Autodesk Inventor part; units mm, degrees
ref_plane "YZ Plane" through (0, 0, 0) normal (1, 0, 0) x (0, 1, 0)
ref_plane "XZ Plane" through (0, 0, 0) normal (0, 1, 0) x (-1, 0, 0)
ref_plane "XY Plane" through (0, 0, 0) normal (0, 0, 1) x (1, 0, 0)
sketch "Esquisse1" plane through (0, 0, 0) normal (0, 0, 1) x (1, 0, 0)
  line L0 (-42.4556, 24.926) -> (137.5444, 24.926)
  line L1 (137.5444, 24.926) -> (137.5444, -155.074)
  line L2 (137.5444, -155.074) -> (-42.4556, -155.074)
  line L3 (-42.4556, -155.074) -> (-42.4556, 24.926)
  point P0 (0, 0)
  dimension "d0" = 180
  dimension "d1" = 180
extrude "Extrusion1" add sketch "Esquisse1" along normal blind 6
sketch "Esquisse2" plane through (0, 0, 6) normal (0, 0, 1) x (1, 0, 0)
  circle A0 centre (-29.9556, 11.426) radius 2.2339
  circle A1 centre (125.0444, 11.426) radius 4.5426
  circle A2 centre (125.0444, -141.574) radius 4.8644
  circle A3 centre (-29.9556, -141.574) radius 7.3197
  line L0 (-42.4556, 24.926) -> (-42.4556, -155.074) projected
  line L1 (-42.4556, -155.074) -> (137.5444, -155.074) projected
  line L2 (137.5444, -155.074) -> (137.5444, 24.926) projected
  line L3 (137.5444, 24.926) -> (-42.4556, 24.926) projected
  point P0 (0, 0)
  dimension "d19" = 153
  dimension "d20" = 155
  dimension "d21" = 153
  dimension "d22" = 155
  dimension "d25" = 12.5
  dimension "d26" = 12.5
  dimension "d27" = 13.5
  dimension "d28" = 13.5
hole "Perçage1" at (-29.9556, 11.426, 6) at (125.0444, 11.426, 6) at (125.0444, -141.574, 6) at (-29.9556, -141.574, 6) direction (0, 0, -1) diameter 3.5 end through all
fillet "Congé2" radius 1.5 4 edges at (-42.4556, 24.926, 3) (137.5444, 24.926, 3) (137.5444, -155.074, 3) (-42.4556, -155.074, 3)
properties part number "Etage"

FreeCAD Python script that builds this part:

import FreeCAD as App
import Part
import Sketcher

V = App.Vector


def edges_at(feature, points):
    """Names of the edges that pass closest to the given points."""
    edges = feature.Shape.Edges
    near = lambda p: min(range(len(edges)), key=lambda i: edges[i].distToShape(Part.Vertex(*p))[0])
    return sorted({f"Edge{near(p) + 1}" for p in points})


def add_polygon(sketch, points):
    """Adds a closed chain of lines whose ends are joined by coincident constraints."""
    first, n = sketch.GeometryCount, len(points)
    for a, b in zip(points, points[1:] + points[:1]):
        sketch.addGeometry(Part.LineSegment(App.Vector(*a, 0), App.Vector(*b, 0)), False)
    for i in range(n):
        sketch.addConstraint(Sketcher.Constraint("Coincident", first + i, 2, first + (i + 1) % n, 1))

doc = App.newDocument("Part")
body = doc.addObject("PartDesign::Body", "Body")

# Sketch on XY plane
sketch1 = body.newObject("Sketcher::SketchObject", "Sketch")
sketch1.AttachmentSupport = (doc.getObject("XY_Plane"), [""])
sketch1.MapMode = "FlatFace"
add_polygon(sketch1, [(137.5444, 24.926), (-42.4556, 24.926), (-42.4556, -155.074), (137.5444, -155.074)])  # lines 0-3
sketch1.addConstraint(Sketcher.Constraint("Horizontal", 0))
sketch1.addConstraint(Sketcher.Constraint("Vertical", 1))
sketch1.addConstraint(Sketcher.Constraint("Horizontal", 2))
sketch1.addConstraint(Sketcher.Constraint("Vertical", 3))
sketch1.addConstraint(Sketcher.Constraint("Equal", 2, 1))
sketch1.addConstraint(Sketcher.Constraint("DistanceX", 0, 2, 0, 1, 180.0))
sketch1.addConstraint(Sketcher.Constraint("DistanceY", -1, 1, 0, 2, 24.926))
sketch1.addConstraint(Sketcher.Constraint("DistanceX", 0, 2, -1, 1, 42.4556))
pad1 = body.newObject("PartDesign::Pad", "Pad")
pad1.Profile = sketch1
pad1.Length = 6

# Sketch on XY plane
sketch2 = body.newObject("Sketcher::SketchObject", "Sketch001")
sketch2.AttachmentSupport = (doc.getObject("XY_Plane"), [""])
sketch2.MapMode = "FlatFace"
sketch2.AttachmentOffset = App.Placement(V(0, 0, 6), App.Rotation())
sketch2.addGeometry(Part.Circle(V(-29.9556, 11.426, 0), V(0, 0, 1), 1.75), False)
sketch2.addGeometry(Part.Circle(V(125.0444, 11.426, 0), V(0, 0, 1), 1.75), False)
sketch2.addGeometry(Part.Circle(V(125.0444, -141.574, 0), V(0, 0, 1), 1.75), False)
sketch2.addGeometry(Part.Circle(V(-29.9556, -141.574, 0), V(0, 0, 1), 1.75), False)
sketch2.addConstraint(Sketcher.Constraint("Equal", 0, 1))
sketch2.addConstraint(Sketcher.Constraint("Equal", 1, 2))
sketch2.addConstraint(Sketcher.Constraint("Equal", 2, 3))
sketch2.addConstraint(Sketcher.Constraint("Horizontal", 0, 3, 1, 3))
sketch2.addConstraint(Sketcher.Constraint("Horizontal", 2, 3, 3, 3))
sketch2.addConstraint(Sketcher.Constraint("Vertical", 1, 3, 2, 3))
sketch2.addConstraint(Sketcher.Constraint("Vertical", 0, 3, 3, 3))
sketch2.addConstraint(Sketcher.Constraint("Diameter", 0, 3.5))
sketch2.addConstraint(Sketcher.Constraint("DistanceX", 0, 3, 1, 3, 155.0))
sketch2.addConstraint(Sketcher.Constraint("DistanceY", 2, 3, 1, 3, 153.0))
sketch2.addConstraint(Sketcher.Constraint("DistanceY", -1, 1, 0, 3, 11.426))
sketch2.addConstraint(Sketcher.Constraint("DistanceX", 0, 3, -1, 1, 29.9556))
doc.recompute()
hole = body.newObject("PartDesign::Hole", "Hole")
hole.Profile = sketch2
hole.ThreadType = "None"
hole.Diameter = 3.5
hole.DepthType = "ThroughAll"
doc.recompute()

fillet = body.newObject("PartDesign::Fillet", "Fillet")
fillet.Base = (hole, edges_at(hole, [
    (-42.456, 24.926, 3),
    (137.544, 24.926, 3),
    (137.544, -155.074, 3),
    (-42.456, -155.074, 3),
]))
fillet.Radius = 1.5

doc.recompute()
